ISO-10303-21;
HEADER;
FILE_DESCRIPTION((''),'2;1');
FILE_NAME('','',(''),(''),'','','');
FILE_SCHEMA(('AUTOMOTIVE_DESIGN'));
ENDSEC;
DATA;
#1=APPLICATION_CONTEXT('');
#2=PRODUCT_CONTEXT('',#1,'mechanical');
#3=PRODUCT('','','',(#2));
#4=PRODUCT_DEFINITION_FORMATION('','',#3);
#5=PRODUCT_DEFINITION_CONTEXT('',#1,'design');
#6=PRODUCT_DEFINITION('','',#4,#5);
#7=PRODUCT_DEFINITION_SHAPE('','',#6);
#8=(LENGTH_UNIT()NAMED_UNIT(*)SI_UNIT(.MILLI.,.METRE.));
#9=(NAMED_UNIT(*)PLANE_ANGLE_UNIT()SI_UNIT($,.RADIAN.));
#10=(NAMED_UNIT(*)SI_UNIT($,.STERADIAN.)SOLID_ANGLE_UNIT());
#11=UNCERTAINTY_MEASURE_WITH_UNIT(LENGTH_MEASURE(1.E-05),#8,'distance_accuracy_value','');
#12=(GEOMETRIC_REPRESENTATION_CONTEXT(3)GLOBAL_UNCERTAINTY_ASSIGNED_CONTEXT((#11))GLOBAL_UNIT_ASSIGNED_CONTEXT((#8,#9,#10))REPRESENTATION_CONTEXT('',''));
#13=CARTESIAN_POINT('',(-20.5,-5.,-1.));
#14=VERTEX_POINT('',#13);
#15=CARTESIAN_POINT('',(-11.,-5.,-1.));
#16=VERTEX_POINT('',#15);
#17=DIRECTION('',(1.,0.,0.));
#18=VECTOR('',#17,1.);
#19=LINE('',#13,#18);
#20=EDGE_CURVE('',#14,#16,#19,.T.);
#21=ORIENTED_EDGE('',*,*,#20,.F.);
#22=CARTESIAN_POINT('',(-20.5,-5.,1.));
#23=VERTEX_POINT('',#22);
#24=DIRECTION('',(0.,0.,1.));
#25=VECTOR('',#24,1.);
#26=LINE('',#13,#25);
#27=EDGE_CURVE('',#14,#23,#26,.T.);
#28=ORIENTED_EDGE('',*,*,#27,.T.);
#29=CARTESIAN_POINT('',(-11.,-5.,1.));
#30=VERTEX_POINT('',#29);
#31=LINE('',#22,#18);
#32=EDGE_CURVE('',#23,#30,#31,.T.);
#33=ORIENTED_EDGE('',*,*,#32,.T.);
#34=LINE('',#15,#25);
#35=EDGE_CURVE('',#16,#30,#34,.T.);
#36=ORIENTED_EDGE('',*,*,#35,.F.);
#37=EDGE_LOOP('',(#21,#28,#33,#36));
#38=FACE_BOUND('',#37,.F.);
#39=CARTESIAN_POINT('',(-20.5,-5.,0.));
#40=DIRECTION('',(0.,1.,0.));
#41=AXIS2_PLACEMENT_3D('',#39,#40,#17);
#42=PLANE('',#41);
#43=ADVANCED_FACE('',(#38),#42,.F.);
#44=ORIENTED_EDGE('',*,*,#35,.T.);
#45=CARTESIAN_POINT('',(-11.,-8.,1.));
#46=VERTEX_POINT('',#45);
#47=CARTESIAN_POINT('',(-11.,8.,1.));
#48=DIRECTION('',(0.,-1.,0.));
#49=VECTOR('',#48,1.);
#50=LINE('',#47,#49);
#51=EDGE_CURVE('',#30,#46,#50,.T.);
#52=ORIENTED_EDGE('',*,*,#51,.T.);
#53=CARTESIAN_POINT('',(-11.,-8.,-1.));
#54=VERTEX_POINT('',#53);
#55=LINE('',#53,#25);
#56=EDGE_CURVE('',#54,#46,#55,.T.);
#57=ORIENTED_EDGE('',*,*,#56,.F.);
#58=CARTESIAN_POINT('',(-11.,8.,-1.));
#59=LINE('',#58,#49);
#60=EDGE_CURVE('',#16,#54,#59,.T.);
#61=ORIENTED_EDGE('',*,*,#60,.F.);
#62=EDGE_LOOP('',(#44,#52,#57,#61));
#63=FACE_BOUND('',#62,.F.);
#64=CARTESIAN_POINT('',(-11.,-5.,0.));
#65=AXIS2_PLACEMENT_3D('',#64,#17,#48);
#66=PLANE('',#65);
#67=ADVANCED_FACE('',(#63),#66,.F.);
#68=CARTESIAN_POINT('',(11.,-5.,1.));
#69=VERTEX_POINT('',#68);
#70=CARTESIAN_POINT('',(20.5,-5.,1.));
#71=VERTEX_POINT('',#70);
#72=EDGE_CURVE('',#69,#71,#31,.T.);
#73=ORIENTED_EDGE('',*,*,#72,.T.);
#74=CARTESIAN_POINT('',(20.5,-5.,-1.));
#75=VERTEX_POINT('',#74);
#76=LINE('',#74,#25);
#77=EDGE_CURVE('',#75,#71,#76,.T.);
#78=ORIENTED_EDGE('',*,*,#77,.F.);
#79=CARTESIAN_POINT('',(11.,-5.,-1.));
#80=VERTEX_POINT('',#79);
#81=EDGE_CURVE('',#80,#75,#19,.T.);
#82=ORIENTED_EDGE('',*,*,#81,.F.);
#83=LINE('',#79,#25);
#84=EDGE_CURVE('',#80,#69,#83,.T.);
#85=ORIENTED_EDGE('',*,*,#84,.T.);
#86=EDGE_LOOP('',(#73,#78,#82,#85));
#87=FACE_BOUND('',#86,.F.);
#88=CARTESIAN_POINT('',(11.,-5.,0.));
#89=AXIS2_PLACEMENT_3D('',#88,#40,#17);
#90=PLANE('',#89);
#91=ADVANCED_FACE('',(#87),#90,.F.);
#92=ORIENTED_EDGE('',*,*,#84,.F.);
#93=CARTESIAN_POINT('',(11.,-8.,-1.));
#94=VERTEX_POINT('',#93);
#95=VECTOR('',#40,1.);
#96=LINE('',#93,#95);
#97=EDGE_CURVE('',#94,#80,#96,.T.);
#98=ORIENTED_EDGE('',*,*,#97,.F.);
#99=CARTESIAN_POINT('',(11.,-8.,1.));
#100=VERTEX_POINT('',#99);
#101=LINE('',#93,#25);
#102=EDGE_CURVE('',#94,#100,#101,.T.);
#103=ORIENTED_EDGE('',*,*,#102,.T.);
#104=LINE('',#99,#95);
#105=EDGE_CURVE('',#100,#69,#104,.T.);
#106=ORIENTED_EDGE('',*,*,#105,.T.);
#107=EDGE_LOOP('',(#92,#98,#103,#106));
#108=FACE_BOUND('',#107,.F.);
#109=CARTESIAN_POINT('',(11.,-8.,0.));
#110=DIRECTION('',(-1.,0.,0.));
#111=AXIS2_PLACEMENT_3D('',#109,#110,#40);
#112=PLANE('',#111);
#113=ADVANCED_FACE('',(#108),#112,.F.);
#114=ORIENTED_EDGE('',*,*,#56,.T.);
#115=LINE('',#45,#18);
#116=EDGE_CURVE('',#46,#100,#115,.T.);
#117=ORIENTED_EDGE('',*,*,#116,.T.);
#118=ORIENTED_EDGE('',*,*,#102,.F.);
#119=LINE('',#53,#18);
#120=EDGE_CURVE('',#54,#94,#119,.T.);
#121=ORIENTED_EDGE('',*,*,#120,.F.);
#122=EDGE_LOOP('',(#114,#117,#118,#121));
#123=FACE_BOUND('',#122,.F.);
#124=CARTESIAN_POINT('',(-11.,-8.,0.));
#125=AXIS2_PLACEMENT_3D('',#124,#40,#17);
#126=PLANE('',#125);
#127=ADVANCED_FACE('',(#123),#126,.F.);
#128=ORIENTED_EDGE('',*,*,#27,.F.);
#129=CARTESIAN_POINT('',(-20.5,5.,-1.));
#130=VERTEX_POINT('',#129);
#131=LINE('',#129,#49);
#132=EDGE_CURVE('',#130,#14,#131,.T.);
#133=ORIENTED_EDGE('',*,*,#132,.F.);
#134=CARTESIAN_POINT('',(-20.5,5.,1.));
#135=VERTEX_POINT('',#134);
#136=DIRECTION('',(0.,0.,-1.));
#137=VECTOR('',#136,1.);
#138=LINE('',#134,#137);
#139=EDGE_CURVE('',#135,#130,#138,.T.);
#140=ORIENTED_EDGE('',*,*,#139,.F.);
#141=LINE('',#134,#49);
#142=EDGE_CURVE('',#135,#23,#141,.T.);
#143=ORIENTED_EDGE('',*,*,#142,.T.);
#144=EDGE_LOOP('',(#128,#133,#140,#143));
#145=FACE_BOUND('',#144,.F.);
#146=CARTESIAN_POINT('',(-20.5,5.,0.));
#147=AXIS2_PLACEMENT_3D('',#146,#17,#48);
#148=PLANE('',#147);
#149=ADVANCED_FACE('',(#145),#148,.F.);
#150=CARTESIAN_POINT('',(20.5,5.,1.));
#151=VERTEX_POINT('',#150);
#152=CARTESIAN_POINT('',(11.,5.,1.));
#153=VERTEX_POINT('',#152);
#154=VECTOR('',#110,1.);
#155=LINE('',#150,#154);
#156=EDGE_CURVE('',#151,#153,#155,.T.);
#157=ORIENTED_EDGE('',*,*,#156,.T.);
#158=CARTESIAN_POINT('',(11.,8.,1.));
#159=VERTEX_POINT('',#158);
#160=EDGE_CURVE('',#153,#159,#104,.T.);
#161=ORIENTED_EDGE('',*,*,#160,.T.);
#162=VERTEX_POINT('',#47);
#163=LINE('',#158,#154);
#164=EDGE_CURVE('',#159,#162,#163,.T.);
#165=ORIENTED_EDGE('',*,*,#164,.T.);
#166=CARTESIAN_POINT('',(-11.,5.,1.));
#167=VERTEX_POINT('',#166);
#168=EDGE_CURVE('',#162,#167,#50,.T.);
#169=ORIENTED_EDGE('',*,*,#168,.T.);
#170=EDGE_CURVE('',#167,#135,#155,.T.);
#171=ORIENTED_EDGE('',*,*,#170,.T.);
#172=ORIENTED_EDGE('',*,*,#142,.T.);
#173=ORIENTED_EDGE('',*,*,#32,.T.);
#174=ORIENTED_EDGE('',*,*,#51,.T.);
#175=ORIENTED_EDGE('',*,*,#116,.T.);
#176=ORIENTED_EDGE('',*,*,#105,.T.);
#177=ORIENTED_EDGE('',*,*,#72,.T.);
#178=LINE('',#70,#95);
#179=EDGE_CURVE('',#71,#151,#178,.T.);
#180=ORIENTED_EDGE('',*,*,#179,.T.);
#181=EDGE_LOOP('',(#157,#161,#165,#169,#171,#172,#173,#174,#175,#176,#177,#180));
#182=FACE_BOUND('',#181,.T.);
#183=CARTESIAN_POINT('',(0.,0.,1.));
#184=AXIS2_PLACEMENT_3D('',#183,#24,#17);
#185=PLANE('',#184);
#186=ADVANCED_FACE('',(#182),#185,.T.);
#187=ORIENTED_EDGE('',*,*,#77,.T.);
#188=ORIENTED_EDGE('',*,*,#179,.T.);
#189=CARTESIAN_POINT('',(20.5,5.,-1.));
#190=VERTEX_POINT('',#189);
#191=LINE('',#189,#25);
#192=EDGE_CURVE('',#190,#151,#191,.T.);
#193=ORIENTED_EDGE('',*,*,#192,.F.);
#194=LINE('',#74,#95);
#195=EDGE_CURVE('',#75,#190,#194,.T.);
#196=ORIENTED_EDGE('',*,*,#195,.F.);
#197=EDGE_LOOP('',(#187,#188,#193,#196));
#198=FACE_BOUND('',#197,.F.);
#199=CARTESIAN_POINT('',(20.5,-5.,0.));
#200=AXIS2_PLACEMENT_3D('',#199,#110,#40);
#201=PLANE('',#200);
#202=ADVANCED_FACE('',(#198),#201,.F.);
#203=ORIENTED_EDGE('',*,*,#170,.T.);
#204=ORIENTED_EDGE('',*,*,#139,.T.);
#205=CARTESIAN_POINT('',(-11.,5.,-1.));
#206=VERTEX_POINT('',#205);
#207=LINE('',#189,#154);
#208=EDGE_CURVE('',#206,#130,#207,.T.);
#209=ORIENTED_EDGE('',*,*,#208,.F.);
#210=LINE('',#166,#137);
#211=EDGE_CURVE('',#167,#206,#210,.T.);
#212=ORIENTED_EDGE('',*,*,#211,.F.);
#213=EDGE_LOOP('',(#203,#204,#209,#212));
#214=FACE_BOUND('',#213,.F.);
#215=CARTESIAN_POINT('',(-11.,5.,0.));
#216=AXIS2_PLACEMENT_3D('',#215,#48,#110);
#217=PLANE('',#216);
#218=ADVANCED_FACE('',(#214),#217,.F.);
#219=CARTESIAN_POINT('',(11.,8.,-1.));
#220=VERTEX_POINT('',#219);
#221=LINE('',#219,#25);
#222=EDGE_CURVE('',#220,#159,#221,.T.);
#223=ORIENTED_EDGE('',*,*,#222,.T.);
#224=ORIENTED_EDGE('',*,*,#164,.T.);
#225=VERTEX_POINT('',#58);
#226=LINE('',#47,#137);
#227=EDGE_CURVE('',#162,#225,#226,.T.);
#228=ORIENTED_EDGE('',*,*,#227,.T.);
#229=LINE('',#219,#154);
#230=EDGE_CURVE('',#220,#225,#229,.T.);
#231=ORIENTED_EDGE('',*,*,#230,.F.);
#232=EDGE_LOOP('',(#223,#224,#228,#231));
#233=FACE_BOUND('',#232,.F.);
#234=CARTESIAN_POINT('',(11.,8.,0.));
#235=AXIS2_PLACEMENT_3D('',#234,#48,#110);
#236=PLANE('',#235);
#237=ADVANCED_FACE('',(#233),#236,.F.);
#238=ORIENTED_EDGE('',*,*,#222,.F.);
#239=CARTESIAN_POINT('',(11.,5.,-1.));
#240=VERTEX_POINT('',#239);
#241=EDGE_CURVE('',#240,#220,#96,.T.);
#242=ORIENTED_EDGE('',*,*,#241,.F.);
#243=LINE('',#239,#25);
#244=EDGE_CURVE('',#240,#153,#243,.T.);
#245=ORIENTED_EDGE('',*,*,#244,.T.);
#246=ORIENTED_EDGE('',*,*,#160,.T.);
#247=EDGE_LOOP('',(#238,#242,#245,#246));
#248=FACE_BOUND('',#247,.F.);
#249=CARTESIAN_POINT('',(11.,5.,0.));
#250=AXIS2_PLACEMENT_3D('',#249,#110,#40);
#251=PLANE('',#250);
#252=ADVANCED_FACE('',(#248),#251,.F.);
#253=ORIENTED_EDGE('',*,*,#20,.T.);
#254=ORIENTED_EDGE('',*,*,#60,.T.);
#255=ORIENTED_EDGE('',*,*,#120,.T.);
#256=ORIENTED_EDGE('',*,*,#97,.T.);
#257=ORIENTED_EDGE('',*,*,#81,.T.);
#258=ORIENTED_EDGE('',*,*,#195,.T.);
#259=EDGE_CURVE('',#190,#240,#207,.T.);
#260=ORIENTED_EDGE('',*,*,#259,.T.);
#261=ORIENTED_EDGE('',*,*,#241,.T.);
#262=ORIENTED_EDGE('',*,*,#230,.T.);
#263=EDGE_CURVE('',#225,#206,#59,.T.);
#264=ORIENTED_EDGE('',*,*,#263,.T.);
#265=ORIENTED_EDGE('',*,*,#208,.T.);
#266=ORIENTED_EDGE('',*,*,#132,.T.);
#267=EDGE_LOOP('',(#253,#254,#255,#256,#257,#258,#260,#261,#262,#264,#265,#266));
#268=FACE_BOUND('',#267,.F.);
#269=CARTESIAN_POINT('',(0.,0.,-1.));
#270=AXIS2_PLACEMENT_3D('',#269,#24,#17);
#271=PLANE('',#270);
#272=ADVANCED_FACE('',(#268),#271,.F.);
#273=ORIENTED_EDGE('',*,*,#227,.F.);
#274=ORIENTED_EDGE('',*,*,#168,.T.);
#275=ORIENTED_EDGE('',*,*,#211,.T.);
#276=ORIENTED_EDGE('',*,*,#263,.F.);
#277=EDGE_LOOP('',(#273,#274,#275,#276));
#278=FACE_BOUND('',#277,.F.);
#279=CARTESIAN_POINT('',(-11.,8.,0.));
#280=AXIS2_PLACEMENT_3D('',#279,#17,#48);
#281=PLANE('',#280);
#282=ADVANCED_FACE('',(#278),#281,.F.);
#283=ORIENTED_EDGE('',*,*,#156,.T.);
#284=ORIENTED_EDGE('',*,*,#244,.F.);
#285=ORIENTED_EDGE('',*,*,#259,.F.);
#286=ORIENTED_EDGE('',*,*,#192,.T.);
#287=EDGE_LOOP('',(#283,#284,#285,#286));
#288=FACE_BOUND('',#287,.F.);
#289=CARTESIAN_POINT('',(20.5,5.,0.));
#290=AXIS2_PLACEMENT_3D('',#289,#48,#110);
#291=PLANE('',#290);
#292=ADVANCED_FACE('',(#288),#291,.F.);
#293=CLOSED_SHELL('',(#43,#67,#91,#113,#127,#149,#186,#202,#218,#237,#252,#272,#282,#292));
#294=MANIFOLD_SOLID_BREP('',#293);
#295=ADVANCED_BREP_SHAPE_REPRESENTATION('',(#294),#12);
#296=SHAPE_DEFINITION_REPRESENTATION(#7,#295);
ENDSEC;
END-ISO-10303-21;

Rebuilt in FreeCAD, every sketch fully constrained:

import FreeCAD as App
import Part
import Sketcher

V = App.Vector


def add_polygon(sketch, points):
    """Adds a closed chain of lines whose ends are joined by coincident constraints."""
    first, n = sketch.GeometryCount, len(points)
    for a, b in zip(points, points[1:] + points[:1]):
        sketch.addGeometry(Part.LineSegment(App.Vector(*a, 0), App.Vector(*b, 0)), False)
    for i in range(n):
        sketch.addConstraint(Sketcher.Constraint("Coincident", first + i, 2, first + (i + 1) % n, 1))

doc = App.newDocument("Part")
body = doc.addObject("PartDesign::Body", "Body")

# Sketch on XY plane
sketch1 = body.newObject("Sketcher::SketchObject", "Sketch")
sketch1.AttachmentSupport = (doc.getObject("XY_Plane"), [""])
sketch1.MapMode = "FlatFace"
add_polygon(sketch1, [(-20.5, 5), (-20.5, -5), (-11, -5), (-11, -8), (11, -8), (11, -5), (20.5, -5), (20.5, 5), (11, 5), (11, 8), (-11, 8), (-11, 5)])  # lines 0-11
sketch1.addConstraint([
    Sketcher.Constraint("Vertical", 0),
    Sketcher.Constraint("Horizontal", 1),
    Sketcher.Constraint("Vertical", 2),
    Sketcher.Constraint("Horizontal", 3),
    Sketcher.Constraint("Vertical", 4),
    Sketcher.Constraint("Horizontal", 5),
    Sketcher.Constraint("Vertical", 6),
    Sketcher.Constraint("Horizontal", 7),
    Sketcher.Constraint("Vertical", 8),
    Sketcher.Constraint("Horizontal", 9),
    Sketcher.Constraint("Vertical", 10),
    Sketcher.Constraint("Horizontal", 11),
    Sketcher.Constraint("Symmetric", 0, 2, 6, 2, -1, 1),
    Sketcher.Constraint("Symmetric", 2, 2, 8, 2, -1, 1),
    Sketcher.Constraint("Symmetric", 4, 2, 10, 2, -1, 1),
    Sketcher.Constraint("Symmetric", 1, 2, 4, 2, -2),
    Sketcher.Constraint("DistanceX", 3, 1, 3, 2, 22.0),
    Sketcher.Constraint("DistanceY", 0, 2, 0, 1, 10.0),
    Sketcher.Constraint("DistanceX", 0, 2, 5, 2, 41.0),
    Sketcher.Constraint("DistanceY", 3, 2, 8, 2, 16.0),
])
pad1 = body.newObject("PartDesign::Pad", "Pad")
pad1.Profile = sketch1
pad1.Length = 2
pad1.Midplane = True

doc.recompute()
